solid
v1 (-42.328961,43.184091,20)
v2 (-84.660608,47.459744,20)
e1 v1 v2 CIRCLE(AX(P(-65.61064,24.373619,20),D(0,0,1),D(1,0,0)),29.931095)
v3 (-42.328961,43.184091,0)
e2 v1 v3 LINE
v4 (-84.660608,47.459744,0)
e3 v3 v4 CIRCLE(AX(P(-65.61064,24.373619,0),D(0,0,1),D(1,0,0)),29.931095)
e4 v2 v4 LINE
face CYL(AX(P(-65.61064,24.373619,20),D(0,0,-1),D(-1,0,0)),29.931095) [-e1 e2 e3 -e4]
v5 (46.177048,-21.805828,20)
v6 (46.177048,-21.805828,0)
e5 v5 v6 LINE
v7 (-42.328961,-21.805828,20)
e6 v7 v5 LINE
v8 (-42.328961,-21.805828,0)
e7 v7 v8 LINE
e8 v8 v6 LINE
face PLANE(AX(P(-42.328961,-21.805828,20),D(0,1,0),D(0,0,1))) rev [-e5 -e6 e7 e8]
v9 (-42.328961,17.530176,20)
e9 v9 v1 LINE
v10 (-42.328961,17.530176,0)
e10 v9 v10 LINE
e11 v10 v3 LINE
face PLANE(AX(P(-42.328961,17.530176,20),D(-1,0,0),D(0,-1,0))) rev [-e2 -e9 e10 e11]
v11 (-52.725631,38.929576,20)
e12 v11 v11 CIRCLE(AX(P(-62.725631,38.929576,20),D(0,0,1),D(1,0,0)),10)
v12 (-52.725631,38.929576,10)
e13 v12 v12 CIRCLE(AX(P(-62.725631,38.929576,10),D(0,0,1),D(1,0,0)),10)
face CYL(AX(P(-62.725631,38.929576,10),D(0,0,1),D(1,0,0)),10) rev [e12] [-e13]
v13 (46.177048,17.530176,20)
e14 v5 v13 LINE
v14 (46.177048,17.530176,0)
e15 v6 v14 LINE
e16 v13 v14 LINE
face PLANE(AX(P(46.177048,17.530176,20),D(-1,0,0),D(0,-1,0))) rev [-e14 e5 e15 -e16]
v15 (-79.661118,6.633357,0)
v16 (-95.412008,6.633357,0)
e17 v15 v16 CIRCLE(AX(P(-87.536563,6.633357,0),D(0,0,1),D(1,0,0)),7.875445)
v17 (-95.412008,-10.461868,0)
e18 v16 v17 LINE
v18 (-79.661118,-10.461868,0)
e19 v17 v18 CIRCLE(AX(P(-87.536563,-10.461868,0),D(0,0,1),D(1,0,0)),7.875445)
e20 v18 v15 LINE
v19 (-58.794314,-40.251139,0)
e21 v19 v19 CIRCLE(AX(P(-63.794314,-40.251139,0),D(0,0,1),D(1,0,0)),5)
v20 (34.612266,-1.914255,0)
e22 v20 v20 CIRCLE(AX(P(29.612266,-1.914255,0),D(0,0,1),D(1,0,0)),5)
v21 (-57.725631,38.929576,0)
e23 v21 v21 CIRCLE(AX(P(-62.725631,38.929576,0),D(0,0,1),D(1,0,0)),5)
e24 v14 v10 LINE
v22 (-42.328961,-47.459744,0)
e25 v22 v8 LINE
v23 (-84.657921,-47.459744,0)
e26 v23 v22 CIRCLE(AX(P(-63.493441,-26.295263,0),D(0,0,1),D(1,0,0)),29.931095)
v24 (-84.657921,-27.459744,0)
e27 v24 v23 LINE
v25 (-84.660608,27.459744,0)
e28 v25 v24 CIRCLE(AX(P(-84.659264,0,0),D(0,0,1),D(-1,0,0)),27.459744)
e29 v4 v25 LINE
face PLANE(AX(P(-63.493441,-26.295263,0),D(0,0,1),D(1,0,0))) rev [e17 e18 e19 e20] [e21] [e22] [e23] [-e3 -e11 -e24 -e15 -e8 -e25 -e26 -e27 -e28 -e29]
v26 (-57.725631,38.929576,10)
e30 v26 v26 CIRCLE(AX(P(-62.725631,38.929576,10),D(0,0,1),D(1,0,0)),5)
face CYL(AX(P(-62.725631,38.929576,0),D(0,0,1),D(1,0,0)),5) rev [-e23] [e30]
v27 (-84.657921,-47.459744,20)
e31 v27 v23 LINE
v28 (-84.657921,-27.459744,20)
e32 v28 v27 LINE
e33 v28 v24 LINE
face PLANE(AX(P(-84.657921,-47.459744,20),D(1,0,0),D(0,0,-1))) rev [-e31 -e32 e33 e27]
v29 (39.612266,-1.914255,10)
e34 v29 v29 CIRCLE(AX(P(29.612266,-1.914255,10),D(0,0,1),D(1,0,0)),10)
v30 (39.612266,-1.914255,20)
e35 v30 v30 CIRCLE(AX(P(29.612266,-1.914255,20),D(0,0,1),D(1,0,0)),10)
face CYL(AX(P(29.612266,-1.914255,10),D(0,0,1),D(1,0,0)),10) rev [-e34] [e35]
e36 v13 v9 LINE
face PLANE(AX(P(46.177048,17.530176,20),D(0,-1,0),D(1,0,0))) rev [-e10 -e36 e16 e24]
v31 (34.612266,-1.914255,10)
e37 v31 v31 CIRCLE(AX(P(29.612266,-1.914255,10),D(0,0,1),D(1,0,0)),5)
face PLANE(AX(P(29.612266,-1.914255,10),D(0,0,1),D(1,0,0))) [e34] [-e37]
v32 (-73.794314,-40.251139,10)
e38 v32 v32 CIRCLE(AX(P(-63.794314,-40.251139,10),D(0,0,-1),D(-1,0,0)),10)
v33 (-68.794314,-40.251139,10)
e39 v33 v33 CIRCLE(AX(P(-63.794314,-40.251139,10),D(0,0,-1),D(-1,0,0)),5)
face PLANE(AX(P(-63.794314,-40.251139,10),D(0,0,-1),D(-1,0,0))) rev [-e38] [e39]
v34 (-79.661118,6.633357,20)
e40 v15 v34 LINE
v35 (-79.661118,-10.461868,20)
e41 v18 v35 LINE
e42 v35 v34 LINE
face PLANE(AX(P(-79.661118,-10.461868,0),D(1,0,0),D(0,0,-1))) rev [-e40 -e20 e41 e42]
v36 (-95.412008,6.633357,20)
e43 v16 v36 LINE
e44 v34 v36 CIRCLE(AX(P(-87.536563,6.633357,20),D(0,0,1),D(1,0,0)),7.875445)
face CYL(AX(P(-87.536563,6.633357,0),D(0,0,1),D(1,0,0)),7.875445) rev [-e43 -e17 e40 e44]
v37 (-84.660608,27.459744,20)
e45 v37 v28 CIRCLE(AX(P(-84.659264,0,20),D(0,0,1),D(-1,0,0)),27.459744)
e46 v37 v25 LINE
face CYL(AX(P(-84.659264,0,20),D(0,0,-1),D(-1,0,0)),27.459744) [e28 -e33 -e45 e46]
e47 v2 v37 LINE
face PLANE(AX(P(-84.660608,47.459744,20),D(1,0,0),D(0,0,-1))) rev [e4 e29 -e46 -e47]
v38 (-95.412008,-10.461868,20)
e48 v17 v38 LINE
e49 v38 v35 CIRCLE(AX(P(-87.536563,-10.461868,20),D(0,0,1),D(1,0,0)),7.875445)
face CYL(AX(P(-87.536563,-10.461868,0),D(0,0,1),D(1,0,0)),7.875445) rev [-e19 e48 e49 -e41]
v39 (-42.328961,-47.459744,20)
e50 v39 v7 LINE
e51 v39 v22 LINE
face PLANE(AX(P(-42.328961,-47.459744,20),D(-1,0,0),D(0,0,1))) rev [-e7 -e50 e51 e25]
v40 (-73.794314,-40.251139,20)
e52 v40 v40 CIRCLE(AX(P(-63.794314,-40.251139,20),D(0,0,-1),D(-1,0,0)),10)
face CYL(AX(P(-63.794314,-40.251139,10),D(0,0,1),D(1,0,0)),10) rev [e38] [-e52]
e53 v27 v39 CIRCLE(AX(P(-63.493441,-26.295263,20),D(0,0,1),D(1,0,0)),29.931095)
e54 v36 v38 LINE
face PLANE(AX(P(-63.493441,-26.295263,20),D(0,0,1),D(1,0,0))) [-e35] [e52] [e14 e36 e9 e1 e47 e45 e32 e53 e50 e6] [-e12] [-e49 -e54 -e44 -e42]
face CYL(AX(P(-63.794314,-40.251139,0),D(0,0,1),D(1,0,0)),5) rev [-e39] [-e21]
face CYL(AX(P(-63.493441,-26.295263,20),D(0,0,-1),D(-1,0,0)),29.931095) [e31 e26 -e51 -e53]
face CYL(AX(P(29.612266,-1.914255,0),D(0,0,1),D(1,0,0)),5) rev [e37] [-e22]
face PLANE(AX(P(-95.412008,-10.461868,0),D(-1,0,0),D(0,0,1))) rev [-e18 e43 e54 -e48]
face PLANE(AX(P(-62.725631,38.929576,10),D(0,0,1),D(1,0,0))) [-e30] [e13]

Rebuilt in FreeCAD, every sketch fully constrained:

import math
import FreeCAD as App
import Part
import Sketcher

doc = App.newDocument("Part")
body = doc.addObject("PartDesign::Body", "Body")

# Sketch on XY plane
sketch1 = body.newObject("Sketcher::SketchObject", "Sketch")
sketch1.AttachmentSupport = (doc.getObject("XY_Plane"), [""])
sketch1.MapMode = "FlatFace"
sketch1.addGeometry([
    Part.LineSegment(App.Vector(46.177048, 17.530176, 0), App.Vector(-42.328961, 17.530176, 0)),  # 0
    Part.LineSegment(App.Vector(-42.328961, 17.530176, 0), App.Vector(-42.328961, 43.184091, 0)),  # 1
    Part.ArcOfCircle(Part.Circle(App.Vector(-65.61064, 24.373619, 0), App.Vector(0, 0, 1), 29.931095), math.radians(38.936538), math.radians(129.528412)),  # 2
    Part.LineSegment(App.Vector(-84.660608, 47.459744, 0), App.Vector(-84.660608, 27.459744, 0)),  # 3
    Part.ArcOfCircle(Part.Circle(App.Vector(-84.659264, 0, 0), App.Vector(0, 0, 1), 27.459744), math.radians(90.002803), math.radians(270.002803)),  # 4
    Part.LineSegment(App.Vector(-84.657921, -27.459744, 0), App.Vector(-84.657921, -47.459744, 0)),  # 5
    Part.ArcOfCircle(Part.Circle(App.Vector(-63.493441, -26.295263, 0), App.Vector(0, 0, 1), 29.931095), math.radians(-135), math.radians(-45)),  # 6
    Part.LineSegment(App.Vector(-42.328961, -47.459744, 0), App.Vector(-42.328961, -21.805828, 0)),  # 7
    Part.LineSegment(App.Vector(-42.328961, -21.805828, 0), App.Vector(46.177048, -21.805828, 0)),  # 8
    Part.LineSegment(App.Vector(46.177048, -21.805828, 0), App.Vector(46.177048, 17.530176, 0)),  # 9
], False)
sketch1.addConstraint([
    Sketcher.Constraint("Coincident", 0, 2, 1, 1),
    Sketcher.Constraint("Coincident", 1, 2, 2, 1),
    Sketcher.Constraint("Coincident", 2, 2, 3, 1),
    Sketcher.Constraint("Coincident", 3, 2, 4, 1),
    Sketcher.Constraint("Coincident", 4, 2, 5, 1),
    Sketcher.Constraint("Coincident", 5, 2, 6, 1),
    Sketcher.Constraint("Coincident", 6, 2, 7, 1),
    Sketcher.Constraint("Coincident", 7, 2, 8, 1),
    Sketcher.Constraint("Coincident", 8, 2, 9, 1),
    Sketcher.Constraint("Coincident", 9, 2, 0, 1),
    Sketcher.Constraint("Horizontal", 0),
    Sketcher.Constraint("Vertical", 1),
    Sketcher.Constraint("Vertical", 3),
    Sketcher.Constraint("Vertical", 5),
    Sketcher.Constraint("Vertical", 7),
    Sketcher.Constraint("Horizontal", 8),
    Sketcher.Constraint("Vertical", 9),
    Sketcher.Constraint("Equal", 2, 6),
    Sketcher.Constraint("PointOnObject", 4, 3, -1),
    Sketcher.Constraint("Horizontal", 5, 2, 6, 2),
    Sketcher.Constraint("Vertical", 1, 2, 6, 2),
    Sketcher.Constraint("Equal", 3, 5),
    Sketcher.Constraint("Equal", 1, 7),
    Sketcher.Constraint("DistanceY", 3, 2, 3, 1, 20.0),
    Sketcher.Constraint("Radius", 2, 29.931095),
    Sketcher.Constraint("Radius", 4, 27.459744),
    Sketcher.Constraint("DistanceX", 0, 2, 0, 1, 88.506009),
    Sketcher.Constraint("DistanceX", 2, 3, 6, 3, 2.117199),
    Sketcher.Constraint("DistanceY", 1, 1, 1, 2, 25.653916),
    Sketcher.Constraint("DistanceY", 9, 1, 9, 2, 39.336004),
    Sketcher.Constraint("DistanceX", 2, 3, -1, 1, 65.61064),
    Sketcher.Constraint("DistanceY", -1, 1, 2, 3, 24.373619),
    Sketcher.Constraint("DistanceX", 4, 3, -1, 1, 84.659264),
])
pad1 = body.newObject("PartDesign::Pad", "Pad")
pad1.Profile = sketch1
pad1.Length = 20

# Sketch on XY plane
sketch2 = body.newObject("Sketcher::SketchObject", "Sketch001")
sketch2.AttachmentSupport = (doc.getObject("XY_Plane"), [""])
sketch2.MapMode = "FlatFace"
sketch2.AttachmentOffset = App.Placement(App.Vector(0, 0, 20), App.Rotation())
sketch2.addGeometry([
    Part.Circle(App.Vector(29.612266, -1.914255, 0), App.Vector(0, 0, 1), 10),
    Part.Circle(App.Vector(-62.725631, 38.929576, 0), App.Vector(0, 0, 1), 10),
    Part.Circle(App.Vector(-63.794314, -40.251139, 0), App.Vector(0, 0, 1), 10),
], False)
sketch2.addConstraint([
    Sketcher.Constraint("Equal", 0, 1),
    Sketcher.Constraint("Equal", 1, 2),
    Sketcher.Constraint("Diameter", 0, 20.0),
    Sketcher.Constraint("DistanceX", 1, 3, -1, 1, 62.725631),
    Sketcher.Constraint("DistanceY", 2, 3, -1, 1, 40.251139),
    Sketcher.Constraint("DistanceY", 0, 3, 1, 3, 40.843831),
    Sketcher.Constraint("DistanceX", 2, 3, 0, 3, 93.406579),
    Sketcher.Constraint("DistanceX", -1, 1, 0, 3, 29.612266),
    Sketcher.Constraint("DistanceY", 0, 3, -1, 1, 1.914255),
])
pocket1 = body.newObject("PartDesign::Pocket", "Pocket")
pocket1.Profile = sketch2
pocket1.Length = 10

# Sketch on XY plane
sketch3 = body.newObject("Sketcher::SketchObject", "Sketch002")
sketch3.AttachmentSupport = (doc.getObject("XY_Plane"), [""])
sketch3.MapMode = "FlatFace"
sketch3.AttachmentOffset = App.Placement(App.Vector(0, 0, 20), App.Rotation())
sketch3.addGeometry([
    Part.LineSegment(App.Vector(-95.412008, 6.633357, 0), App.Vector(-95.412008, -10.461868, 0)),
    Part.ArcOfCircle(Part.Circle(App.Vector(-87.536563, -10.461868, 0), App.Vector(0, 0, 1), 7.875445), math.radians(180), math.radians(360)),
    Part.LineSegment(App.Vector(-79.661118, -10.461868, 0), App.Vector(-79.661118, 6.633357, 0)),
    Part.ArcOfCircle(Part.Circle(App.Vector(-87.536563, 6.633357, 0), App.Vector(0, 0, 1), 7.875445), math.radians(0), math.radians(180)),
], False)
sketch3.addConstraint([
    Sketcher.Constraint("Tangent", 0, 2, 1, 1),
    Sketcher.Constraint("Tangent", 1, 2, 2, 1),
    Sketcher.Constraint("Tangent", 2, 2, 3, 1),
    Sketcher.Constraint("Tangent", 3, 2, 0, 1),
    Sketcher.Constraint("Vertical", 0),
    Sketcher.Constraint("Vertical", 2),
    Sketcher.Constraint("Radius", 1, 7.875445),
    Sketcher.Constraint("DistanceY", 0, 2, 0, 1, 17.095224),
    Sketcher.Constraint("DistanceX", 1, 2, -1, 1, 79.661118),
    Sketcher.Constraint("DistanceY", 1, 3, -1, 1, 10.461868),
])
pocket2 = body.newObject("PartDesign::Pocket", "Pocket001")
pocket2.Profile = sketch3
pocket2.Length = 20

# Sketch on XY plane
sketch4 = body.newObject("Sketcher::SketchObject", "Sketch003")
sketch4.AttachmentSupport = (doc.getObject("XY_Plane"), [""])
sketch4.MapMode = "FlatFace"
sketch4.AttachmentOffset = App.Placement(App.Vector(0, 0, 20), App.Rotation())
sketch4.addGeometry([
    Part.Circle(App.Vector(-62.725631, 38.929576, 0), App.Vector(0, 0, 1), 5),
    Part.Circle(App.Vector(-63.794314, -40.251139, 0), App.Vector(0, 0, 1), 5),
    Part.Circle(App.Vector(29.612266, -1.914255, 0), App.Vector(0, 0, 1), 5),
], False)
sketch4.addConstraint([
    Sketcher.Constraint("Equal", 0, 1),
    Sketcher.Constraint("Equal", 1, 2),
    Sketcher.Constraint("Diameter", 0, 10.0),
    Sketcher.Constraint("DistanceX", 0, 3, -1, 1, 62.725631),
    Sketcher.Constraint("DistanceY", 1, 3, -1, 1, 40.251139),
    Sketcher.Constraint("DistanceY", 2, 3, 0, 3, 40.843831),
    Sketcher.Constraint("DistanceX", 1, 3, 2, 3, 93.406579),
    Sketcher.Constraint("DistanceY", -1, 1, 0, 3, 38.929576),
    Sketcher.Constraint("DistanceX", 1, 3, -1, 1, 63.794314),
])
pocket3 = body.newObject("PartDesign::Pocket", "Pocket002")
pocket3.Profile = sketch4
pocket3.Length = 20

doc.recompute()
